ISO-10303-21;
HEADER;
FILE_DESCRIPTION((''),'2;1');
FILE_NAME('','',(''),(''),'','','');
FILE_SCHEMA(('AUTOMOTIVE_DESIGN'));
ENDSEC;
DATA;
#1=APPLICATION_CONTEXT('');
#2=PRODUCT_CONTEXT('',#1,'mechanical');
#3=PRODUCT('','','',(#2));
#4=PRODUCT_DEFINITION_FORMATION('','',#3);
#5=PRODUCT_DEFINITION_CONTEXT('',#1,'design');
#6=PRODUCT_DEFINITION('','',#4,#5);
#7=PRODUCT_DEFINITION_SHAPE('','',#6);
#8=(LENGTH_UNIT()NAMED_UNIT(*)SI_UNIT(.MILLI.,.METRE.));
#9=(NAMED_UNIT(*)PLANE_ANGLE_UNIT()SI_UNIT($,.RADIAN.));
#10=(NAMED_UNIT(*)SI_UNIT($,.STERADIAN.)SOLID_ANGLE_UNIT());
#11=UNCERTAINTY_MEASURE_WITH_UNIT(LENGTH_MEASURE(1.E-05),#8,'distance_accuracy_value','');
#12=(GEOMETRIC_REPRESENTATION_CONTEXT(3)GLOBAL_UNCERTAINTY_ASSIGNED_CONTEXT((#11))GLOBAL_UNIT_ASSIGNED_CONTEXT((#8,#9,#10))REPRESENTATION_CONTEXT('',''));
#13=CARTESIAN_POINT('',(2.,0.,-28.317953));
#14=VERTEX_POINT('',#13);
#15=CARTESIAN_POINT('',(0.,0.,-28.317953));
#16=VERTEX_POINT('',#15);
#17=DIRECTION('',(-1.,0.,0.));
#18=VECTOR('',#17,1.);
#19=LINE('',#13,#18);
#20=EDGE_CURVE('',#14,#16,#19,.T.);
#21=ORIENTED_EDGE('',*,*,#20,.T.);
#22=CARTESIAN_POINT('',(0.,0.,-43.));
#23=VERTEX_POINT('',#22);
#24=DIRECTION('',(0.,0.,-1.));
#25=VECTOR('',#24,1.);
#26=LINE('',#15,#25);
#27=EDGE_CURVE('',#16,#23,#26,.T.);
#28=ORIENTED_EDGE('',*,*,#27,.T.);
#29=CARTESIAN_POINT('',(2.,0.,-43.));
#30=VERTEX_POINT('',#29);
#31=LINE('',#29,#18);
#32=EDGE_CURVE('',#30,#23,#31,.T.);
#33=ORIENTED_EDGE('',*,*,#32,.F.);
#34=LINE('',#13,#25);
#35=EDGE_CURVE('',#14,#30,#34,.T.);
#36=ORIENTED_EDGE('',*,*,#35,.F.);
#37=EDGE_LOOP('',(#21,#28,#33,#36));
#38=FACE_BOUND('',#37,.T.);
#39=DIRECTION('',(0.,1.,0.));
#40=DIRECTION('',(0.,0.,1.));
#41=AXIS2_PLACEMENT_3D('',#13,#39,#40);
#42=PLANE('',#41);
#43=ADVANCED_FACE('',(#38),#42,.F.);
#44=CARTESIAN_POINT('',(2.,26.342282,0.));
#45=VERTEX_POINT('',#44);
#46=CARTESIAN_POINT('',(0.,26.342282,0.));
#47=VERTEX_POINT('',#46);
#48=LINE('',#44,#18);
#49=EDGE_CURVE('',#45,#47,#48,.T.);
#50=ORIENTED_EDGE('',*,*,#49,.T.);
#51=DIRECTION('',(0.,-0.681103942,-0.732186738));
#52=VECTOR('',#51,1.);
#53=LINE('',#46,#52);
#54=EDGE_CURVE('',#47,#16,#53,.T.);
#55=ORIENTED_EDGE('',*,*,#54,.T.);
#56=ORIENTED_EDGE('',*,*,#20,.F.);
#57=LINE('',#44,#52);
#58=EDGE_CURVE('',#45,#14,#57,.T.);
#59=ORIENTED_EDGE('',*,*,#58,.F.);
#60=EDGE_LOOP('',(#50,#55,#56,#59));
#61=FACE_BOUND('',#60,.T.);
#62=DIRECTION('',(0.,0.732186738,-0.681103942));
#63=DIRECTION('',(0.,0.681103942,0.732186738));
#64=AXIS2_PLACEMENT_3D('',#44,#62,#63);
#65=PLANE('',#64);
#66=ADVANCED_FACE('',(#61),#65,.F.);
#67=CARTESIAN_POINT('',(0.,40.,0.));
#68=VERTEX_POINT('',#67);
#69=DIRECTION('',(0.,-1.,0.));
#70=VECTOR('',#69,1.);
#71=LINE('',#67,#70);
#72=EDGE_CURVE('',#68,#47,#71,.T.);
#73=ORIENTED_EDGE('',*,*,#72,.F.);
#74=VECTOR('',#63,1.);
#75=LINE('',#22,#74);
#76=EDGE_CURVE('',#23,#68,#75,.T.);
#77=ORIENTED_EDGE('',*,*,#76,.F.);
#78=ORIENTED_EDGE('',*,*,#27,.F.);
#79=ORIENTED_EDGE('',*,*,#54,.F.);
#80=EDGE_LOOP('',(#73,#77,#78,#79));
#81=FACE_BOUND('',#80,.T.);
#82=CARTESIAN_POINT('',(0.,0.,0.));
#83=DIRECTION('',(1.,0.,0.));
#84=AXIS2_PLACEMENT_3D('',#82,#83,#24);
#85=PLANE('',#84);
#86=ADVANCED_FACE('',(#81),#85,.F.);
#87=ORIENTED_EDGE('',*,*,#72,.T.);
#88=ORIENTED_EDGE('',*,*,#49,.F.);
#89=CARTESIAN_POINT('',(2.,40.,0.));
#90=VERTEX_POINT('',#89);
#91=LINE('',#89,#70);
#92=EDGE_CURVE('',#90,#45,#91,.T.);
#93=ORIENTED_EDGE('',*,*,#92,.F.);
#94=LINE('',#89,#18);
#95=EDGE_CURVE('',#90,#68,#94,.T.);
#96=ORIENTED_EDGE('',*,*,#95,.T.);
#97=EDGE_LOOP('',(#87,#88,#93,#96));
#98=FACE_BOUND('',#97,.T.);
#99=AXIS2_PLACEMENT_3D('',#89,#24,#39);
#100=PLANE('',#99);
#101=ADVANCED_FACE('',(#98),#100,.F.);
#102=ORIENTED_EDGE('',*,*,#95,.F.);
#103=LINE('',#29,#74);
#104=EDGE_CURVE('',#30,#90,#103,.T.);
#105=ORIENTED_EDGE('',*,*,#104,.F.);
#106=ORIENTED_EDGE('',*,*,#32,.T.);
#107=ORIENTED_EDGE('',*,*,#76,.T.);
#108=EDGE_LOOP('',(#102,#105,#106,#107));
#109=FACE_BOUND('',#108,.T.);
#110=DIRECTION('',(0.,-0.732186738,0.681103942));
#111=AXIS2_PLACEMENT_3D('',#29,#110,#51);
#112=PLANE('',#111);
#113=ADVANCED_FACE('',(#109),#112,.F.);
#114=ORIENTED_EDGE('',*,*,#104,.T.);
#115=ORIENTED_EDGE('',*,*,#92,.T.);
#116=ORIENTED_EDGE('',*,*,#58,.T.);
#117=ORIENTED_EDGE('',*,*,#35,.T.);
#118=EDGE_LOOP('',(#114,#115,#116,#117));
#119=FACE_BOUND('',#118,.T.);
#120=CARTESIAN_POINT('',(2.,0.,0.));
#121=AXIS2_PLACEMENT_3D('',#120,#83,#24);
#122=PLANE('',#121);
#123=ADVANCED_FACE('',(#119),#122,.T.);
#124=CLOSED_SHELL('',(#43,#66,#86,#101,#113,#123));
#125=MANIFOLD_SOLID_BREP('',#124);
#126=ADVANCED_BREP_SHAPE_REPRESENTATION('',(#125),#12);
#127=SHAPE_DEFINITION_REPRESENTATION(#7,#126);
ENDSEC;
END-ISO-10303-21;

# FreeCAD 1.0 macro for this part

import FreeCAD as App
import Part
import Sketcher

V = App.Vector
Q = App.Units.Quantity

doc = App.newDocument("Part")
params = doc.addObject("Spreadsheet::Sheet", "Params")
for row, (alias, value) in enumerate([
    ("pad1_length", "2 mm"),
], start=1):
    params.set(f"A{row}", alias)
    params.set(f"B{row}", "=" + value)
    params.setAlias(f"B{row}", alias)

body = doc.addObject("PartDesign::Body", "Body")

# Sketch on YZ plane
sketch1 = body.newObject("Sketcher::SketchObject", "Sketch")
sketch1.AttachmentSupport = (doc.getObject("YZ_Plane"), [""])
sketch1.MapMode = "FlatFace"
sketch1.addGeometry([
    Part.LineSegment(V(0, -28, 0), V(0, -43, 0)),
    Part.LineSegment(V(0, -43, 0), V(40, 0, 0)),
    Part.LineSegment(V(40, 0, 0), V(26, 0, 0)),
    Part.LineSegment(V(26, 0, 0), V(0, -28, 0)),
], False)
sketch1.addConstraint([
    Sketcher.Constraint("Coincident", 0, 2, 1, 1),
    Sketcher.Constraint("Coincident", 1, 2, 2, 1),
    Sketcher.Constraint("Coincident", 2, 2, 3, 1),
    Sketcher.Constraint("Coincident", 3, 2, 0, 1),
    Sketcher.Constraint("Vertical", 0),
    Sketcher.Constraint("Horizontal", 2),
    Sketcher.Constraint("PointOnObject", 0, 2, -2),
    Sketcher.Constraint("PointOnObject", 1, 2, -1),
    Sketcher.Constraint("Parallel", 1, 3),
    Sketcher.Constraint("DistanceY", 0, 2, -1, 1, Q("43 mm")),
    Sketcher.Constraint("DistanceX", -1, 1, 1, 2, Q("40 mm")),
    Sketcher.Constraint("DistanceX", 2, 2, 2, 1, Q("13.657718 mm")),
])
pad1 = body.newObject("PartDesign::Pad", "Pad")
pad1.Profile = sketch1
pad1.setExpression("Length", "Params.pad1_length")

doc.recompute()
